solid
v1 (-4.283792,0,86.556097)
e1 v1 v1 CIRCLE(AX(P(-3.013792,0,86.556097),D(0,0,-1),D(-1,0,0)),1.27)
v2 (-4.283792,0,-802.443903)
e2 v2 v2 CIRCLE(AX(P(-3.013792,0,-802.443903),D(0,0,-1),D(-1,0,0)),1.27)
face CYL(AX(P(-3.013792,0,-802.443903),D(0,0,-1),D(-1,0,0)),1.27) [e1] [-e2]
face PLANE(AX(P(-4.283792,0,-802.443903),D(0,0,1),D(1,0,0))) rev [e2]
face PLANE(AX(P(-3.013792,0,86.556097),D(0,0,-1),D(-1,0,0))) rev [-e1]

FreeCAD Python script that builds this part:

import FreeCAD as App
import Part
import Sketcher
Q = App.Units.Quantity

doc = App.newDocument("Part")
body = doc.addObject("PartDesign::Body", "Body")

# Sketch on XZ plane
sketch1 = body.newObject("Sketcher::SketchObject", "Sketch")
sketch1.AttachmentSupport = (doc.getObject("XZ_Plane"), [""])
sketch1.MapMode = "FlatFace"
sketch1.addGeometry([
    Part.LineSegment(App.Vector(-3, -802.4, 0), App.Vector(-3, 86.6, 0)),
    Part.LineSegment(App.Vector(-3, 86.6, 0), App.Vector(-1.7, 86.6, 0)),
    Part.LineSegment(App.Vector(-1.7, 86.6, 0), App.Vector(-1.7, -802.4, 0)),
    Part.LineSegment(App.Vector(-1.7, -802.4, 0), App.Vector(-3, -802.4, 0)),
], False)
sketch1.addGeometry(Part.LineSegment(App.Vector(-3, -802.4, 0), App.Vector(-3, 86.6, 0)), True)  # axis
sketch1.addConstraint([
    Sketcher.Constraint("Coincident", 0, 2, 1, 1),
    Sketcher.Constraint("Coincident", 1, 2, 2, 1),
    Sketcher.Constraint("Coincident", 2, 2, 3, 1),
    Sketcher.Constraint("Coincident", 3, 2, 0, 1),
    Sketcher.Constraint("Vertical", 0),
    Sketcher.Constraint("Horizontal", 1),
    Sketcher.Constraint("Vertical", 2),
    Sketcher.Constraint("Horizontal", 3),
    Sketcher.Constraint("Vertical", 4),
    Sketcher.Constraint("Coincident", 4, 1, 3, 2),
    Sketcher.Constraint("Horizontal", 1, 2, 4, 2),
    Sketcher.Constraint("DistanceY", 0, 1, 0, 2, Q("35 in")),
    Sketcher.Constraint("DistanceX", 1, 1, 1, 2, Q("0.05 in")),
    Sketcher.Constraint("DistanceX", 0, 2, -1, 1, 3.013792),
    Sketcher.Constraint("DistanceY", -1, 1, 0, 2, 86.556097),
])
revolution = body.newObject("PartDesign::Revolution", "Revolution")
revolution.Profile = sketch1
revolution.ReferenceAxis = (sketch1, ["Axis0"])
revolution.Angle = 360

doc.recompute()
